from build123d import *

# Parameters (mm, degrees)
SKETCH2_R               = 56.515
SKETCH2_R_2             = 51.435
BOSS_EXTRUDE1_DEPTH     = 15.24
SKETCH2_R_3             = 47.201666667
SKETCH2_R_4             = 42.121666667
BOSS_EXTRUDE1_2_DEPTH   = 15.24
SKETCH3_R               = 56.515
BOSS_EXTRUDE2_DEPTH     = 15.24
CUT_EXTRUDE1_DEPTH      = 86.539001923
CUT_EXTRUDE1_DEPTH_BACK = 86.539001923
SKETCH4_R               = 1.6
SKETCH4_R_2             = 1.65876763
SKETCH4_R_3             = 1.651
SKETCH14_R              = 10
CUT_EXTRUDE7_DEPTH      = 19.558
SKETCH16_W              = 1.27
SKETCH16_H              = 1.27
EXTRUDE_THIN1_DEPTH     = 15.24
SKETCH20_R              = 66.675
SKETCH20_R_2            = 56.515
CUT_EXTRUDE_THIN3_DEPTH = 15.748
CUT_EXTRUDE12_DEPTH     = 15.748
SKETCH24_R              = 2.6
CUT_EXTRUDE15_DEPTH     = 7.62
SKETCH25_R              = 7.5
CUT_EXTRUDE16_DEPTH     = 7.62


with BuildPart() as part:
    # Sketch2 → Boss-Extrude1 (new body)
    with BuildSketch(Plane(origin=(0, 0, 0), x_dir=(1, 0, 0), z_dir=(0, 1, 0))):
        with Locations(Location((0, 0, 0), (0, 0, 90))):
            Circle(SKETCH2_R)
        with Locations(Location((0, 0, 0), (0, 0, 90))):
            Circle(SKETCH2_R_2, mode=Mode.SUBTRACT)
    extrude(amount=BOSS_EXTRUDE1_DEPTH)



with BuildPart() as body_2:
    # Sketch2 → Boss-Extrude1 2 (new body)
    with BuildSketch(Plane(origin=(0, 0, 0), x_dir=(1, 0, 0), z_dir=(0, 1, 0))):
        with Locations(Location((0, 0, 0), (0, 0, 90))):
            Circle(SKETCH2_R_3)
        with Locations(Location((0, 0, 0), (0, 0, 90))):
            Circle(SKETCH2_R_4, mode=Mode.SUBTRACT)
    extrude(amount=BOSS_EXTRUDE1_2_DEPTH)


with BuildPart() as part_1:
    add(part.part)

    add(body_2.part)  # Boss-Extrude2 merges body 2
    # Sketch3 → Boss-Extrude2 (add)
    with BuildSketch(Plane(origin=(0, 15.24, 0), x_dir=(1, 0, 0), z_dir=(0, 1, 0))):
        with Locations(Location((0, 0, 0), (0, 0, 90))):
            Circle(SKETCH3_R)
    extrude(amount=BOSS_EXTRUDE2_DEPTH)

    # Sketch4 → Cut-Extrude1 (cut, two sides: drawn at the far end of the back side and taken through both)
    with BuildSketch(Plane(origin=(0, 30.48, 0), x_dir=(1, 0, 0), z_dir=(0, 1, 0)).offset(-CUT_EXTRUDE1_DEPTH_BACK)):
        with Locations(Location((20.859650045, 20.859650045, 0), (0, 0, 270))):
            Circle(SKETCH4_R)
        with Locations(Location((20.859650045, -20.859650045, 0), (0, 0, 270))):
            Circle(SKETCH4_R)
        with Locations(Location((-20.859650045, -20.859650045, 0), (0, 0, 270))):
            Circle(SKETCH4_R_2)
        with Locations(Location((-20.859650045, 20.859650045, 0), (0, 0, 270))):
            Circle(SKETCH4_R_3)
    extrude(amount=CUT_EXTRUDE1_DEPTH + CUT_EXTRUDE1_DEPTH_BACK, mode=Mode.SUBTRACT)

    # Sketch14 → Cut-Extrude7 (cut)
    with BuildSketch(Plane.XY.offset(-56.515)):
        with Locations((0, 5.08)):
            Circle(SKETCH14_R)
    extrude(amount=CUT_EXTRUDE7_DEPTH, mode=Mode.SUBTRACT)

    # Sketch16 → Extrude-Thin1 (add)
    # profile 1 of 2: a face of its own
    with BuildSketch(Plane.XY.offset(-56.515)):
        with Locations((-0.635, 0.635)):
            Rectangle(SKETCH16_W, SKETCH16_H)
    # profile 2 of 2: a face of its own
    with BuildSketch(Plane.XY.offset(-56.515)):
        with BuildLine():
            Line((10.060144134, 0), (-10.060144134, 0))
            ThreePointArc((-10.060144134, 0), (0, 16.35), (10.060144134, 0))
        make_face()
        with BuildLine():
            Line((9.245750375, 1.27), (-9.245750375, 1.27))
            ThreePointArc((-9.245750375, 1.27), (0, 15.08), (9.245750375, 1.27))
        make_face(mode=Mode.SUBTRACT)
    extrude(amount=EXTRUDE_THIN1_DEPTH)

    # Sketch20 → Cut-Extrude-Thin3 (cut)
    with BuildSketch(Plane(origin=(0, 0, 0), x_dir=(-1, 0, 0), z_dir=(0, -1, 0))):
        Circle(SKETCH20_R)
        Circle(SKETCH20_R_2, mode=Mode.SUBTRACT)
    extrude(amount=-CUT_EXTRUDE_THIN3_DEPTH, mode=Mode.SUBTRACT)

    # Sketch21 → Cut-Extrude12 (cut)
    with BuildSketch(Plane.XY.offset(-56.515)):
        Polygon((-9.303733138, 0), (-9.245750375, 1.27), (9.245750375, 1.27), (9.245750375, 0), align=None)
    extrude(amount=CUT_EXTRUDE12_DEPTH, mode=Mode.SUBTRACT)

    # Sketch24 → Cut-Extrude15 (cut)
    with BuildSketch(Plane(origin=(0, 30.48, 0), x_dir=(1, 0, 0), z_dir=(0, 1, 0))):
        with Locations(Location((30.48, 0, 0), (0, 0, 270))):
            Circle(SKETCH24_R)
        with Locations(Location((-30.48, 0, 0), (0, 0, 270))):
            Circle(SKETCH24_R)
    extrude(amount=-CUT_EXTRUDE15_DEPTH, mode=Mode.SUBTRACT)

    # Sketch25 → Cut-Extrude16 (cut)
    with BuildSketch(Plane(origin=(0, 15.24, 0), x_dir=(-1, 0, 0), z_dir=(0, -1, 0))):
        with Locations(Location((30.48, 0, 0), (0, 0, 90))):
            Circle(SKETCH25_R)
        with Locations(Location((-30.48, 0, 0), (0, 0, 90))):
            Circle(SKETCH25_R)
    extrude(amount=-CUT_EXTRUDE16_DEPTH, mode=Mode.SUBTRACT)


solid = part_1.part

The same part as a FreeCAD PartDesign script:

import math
import FreeCAD as App
import Part
import Sketcher

V = App.Vector
Q = App.Units.Quantity

doc = App.newDocument("Part")
body = doc.addObject("PartDesign::Body", "Body")

# Sketch on XZ plane
sketch1 = body.newObject("Sketcher::SketchObject", "Sketch")
sketch1.AttachmentSupport = (doc.getObject("XZ_Plane"), [""])
sketch1.MapMode = "FlatFace"
sketch1.addGeometry(Part.Circle(V(0, 0, 0), V(0, 0, 1), 57), False)
sketch1.addGeometry(Part.Circle(V(0, 0, 0), V(0, 0, 1), 51), False)
sketch1.addConstraint(Sketcher.Constraint("Coincident", 0, 3, -1, 1))
sketch1.addConstraint(Sketcher.Constraint("Coincident", 1, 3, -1, 1))
sketch1.addConstraint(Sketcher.Constraint("Diameter", 0, Q("4.45 in")))
sketch1.addConstraint(Sketcher.Constraint("Diameter", 1, Q("4.05 in")))
pad1 = body.newObject("PartDesign::Pad", "Pad")
pad1.Profile = sketch1
pad1.Length = Q("0.6 in")
pad1.Reversed = True
body2 = doc.addObject("PartDesign::Body", "Body001")

# Sketch on XZ plane
sketch2 = body2.newObject("Sketcher::SketchObject", "Sketch001")
sketch2.AttachmentSupport = (doc.getObject("XZ_Plane001"), [""])
sketch2.MapMode = "FlatFace"
sketch2.addGeometry(Part.Circle(V(0, 0, 0), V(0, 0, 1), 47), False)
sketch2.addGeometry(Part.Circle(V(0, 0, 0), V(0, 0, 1), 42), False)
sketch2.addConstraint(Sketcher.Constraint("Coincident", 0, 3, -1, 1))
sketch2.addConstraint(Sketcher.Constraint("Coincident", 1, 3, -1, 1))
sketch2.addConstraint(Sketcher.Constraint("Diameter", 0, Q("94.403333 mm")))
sketch2.addConstraint(Sketcher.Constraint("Diameter", 1, Q("84.243333 mm")))
pad2 = body2.newObject("PartDesign::Pad", "Pad001")
pad2.Profile = sketch2
pad2.Length = Q("0.6 in")
pad2.Reversed = True
body.AllowCompound = True
doc.recompute()

boolean = body.newObject("PartDesign::Boolean", "Boolean")
boolean.Type = "Fuse"
boolean.addObjects([body2])

# Sketch on XZ plane
sketch3 = body.newObject("Sketcher::SketchObject", "Sketch002")
sketch3.AttachmentSupport = (doc.getObject("XZ_Plane"), [""])
sketch3.MapMode = "FlatFace"
sketch3.AttachmentOffset = App.Placement(V(0, 0, -0.6 * 25.4), App.Rotation())
sketch3.addGeometry(Part.Circle(V(0, 0, 0), V(0, 0, 1), 57), False)
sketch3.addConstraint(Sketcher.Constraint("Coincident", 0, 3, -1, 1))
sketch3.addConstraint(Sketcher.Constraint("Diameter", 0, Q("4.45 in")))
pad3 = body.newObject("PartDesign::Pad", "Pad002")
pad3.Profile = sketch3
pad3.Length = Q("0.6 in")
pad3.Reversed = True

# Sketch on XZ plane
sketch4 = body.newObject("Sketcher::SketchObject", "Sketch003")
sketch4.AttachmentSupport = (doc.getObject("XZ_Plane"), [""])
sketch4.MapMode = "FlatFace"
sketch4.AttachmentOffset = App.Placement(V(0, 0, -1.2 * 25.4), App.Rotation())
sketch4.addGeometry(Part.Circle(V(20.9, -20.9, 0), V(0, 0, 1), 1.6), False)
sketch4.addGeometry(Part.Circle(V(20.9, 20.9, 0), V(0, 0, 1), 1.6), False)
sketch4.addGeometry(Part.Circle(V(-20.9, 20.9, 0), V(0, 0, 1), 1.7), False)
sketch4.addGeometry(Part.Circle(V(-20.9, -20.9, 0), V(0, 0, 1), 1.7), False)
sketch4.addConstraint(Sketcher.Constraint("Equal", 0, 1))
sketch4.addConstraint(Sketcher.Constraint("Symmetric", 0, 3, 2, 3, -1, 1))
sketch4.addConstraint(Sketcher.Constraint("Symmetric", 1, 3, 3, 3, -1, 1))
sketch4.addConstraint(Sketcher.Constraint("Symmetric", 1, 3, 2, 3, -2))
sketch4.addConstraint(Sketcher.Constraint("Diameter", 3, Q("0.13 in")))
sketch4.addConstraint(Sketcher.Constraint("Diameter", 0, Q("3.2 mm")))
sketch4.addConstraint(Sketcher.Constraint("Diameter", 2, Q("3.317535 mm")))
sketch4.addConstraint(Sketcher.Constraint("DistanceY", 0, 3, 1, 3, Q("41.7193 mm")))
sketch4.addConstraint(Sketcher.Constraint("DistanceX", 2, 3, 1, 3, Q("41.7193 mm")))
pocket1 = body.newObject("PartDesign::Pocket", "Pocket")
pocket1.Profile = sketch4
pocket1.Type = "ThroughAll"
pocket1.Midplane = True

# Sketch on XY plane
sketch5 = body.newObject("Sketcher::SketchObject", "Sketch004")
sketch5.AttachmentSupport = (doc.getObject("XY_Plane"), [""])
sketch5.MapMode = "FlatFace"
sketch5.AttachmentOffset = App.Placement(V(0, 0, -2.225 * 25.4), App.Rotation())
sketch5.addGeometry(Part.Circle(V(0, 5, 0), V(0, 0, 1), 10), False)
sketch5.addConstraint(Sketcher.Constraint("PointOnObject", 0, 3, -2))
sketch5.addConstraint(Sketcher.Constraint("DistanceY", -1, 1, 0, 3, Q("0.2 in")))
sketch5.addConstraint(Sketcher.Constraint("Diameter", 0, Q("20 mm")))
pocket2 = body.newObject("PartDesign::Pocket", "Pocket001")
pocket2.Profile = sketch5
pocket2.Length = Q("0.77 in")
pocket2.Reversed = True

# Sketch on XY plane
sketch6 = body.newObject("Sketcher::SketchObject", "Sketch005")
sketch6.AttachmentSupport = (doc.getObject("XY_Plane"), [""])
sketch6.MapMode = "FlatFace"
sketch6.AttachmentOffset = App.Placement(V(0, 0, -2.225 * 25.4), App.Rotation())
sketch6.addGeometry(Part.ArcOfCircle(Part.Circle(V(0, 5, 0), V(0, 0, 1), 11), math.radians(-27), math.radians(207)), False)
sketch6.addGeometry(Part.LineSegment(V(-10, 0, 0), V(10, 0, 0)), False)
sketch6.addGeometry(Part.ArcOfCircle(Part.Circle(V(0, 5, 0), V(0, 0, 1), 10), math.radians(-22), math.radians(202)), False)
sketch6.addGeometry(Part.LineSegment(V(9, 1, 0), V(-9, 1, 0)), False)
sketch6.addConstraint(Sketcher.Constraint("Coincident", 0, 1, 1, 2))
sketch6.addConstraint(Sketcher.Constraint("Coincident", 1, 1, 0, 2))
sketch6.addConstraint(Sketcher.Constraint("Coincident", 2, 1, 3, 1))
sketch6.addConstraint(Sketcher.Constraint("Coincident", 3, 2, 2, 2))
sketch6.addConstraint(Sketcher.Constraint("Horizontal", 1))
sketch6.addConstraint(Sketcher.Constraint("Horizontal", 3))
sketch6.addConstraint(Sketcher.Constraint("Coincident", 2, 3, 0, 3))
sketch6.addConstraint(Sketcher.Constraint("Symmetric", 0, 1, 1, 1, -1, 1))
sketch6.addConstraint(Sketcher.Constraint("DistanceY", -1, 1, 0, 3, Q("0.2 in")))
sketch6.addConstraint(Sketcher.Constraint("DistanceY", -1, 1, 2, 1, Q("0.05 in")))
sketch6.addConstraint(Sketcher.Constraint("Radius", 0, Q("11.27 mm")))
sketch6.addConstraint(Sketcher.Constraint("Radius", 2, Q("10 mm")))
pad4 = body.newObject("PartDesign::Pad", "Pad003")
pad4.Profile = sketch6
pad4.Length = Q("0.6 in")

# Sketch on XZ plane
sketch7 = body.newObject("Sketcher::SketchObject", "Sketch006")
sketch7.AttachmentSupport = (doc.getObject("XZ_Plane"), [""])
sketch7.MapMode = "FlatFace"
sketch7.addGeometry(Part.Circle(V(0, 0, 0), V(0, 0, 1), 67), False)
sketch7.addGeometry(Part.Circle(V(0, 0, 0), V(0, 0, 1), 57), False)
sketch7.addConstraint(Sketcher.Constraint("Coincident", 0, 3, -1, 1))
sketch7.addConstraint(Sketcher.Constraint("Coincident", 1, 3, -1, 1))
sketch7.addConstraint(Sketcher.Constraint("Diameter", 0, Q("5.25 in")))
sketch7.addConstraint(Sketcher.Constraint("Diameter", 1, Q("4.45 in")))
pocket3 = body.newObject("PartDesign::Pocket", "Pocket002")
pocket3.Profile = sketch7
pocket3.Length = Q("0.62 in")

# Sketch on XY plane
sketch8 = body.newObject("Sketcher::SketchObject", "Sketch007")
sketch8.AttachmentSupport = (doc.getObject("XY_Plane"), [""])
sketch8.MapMode = "FlatFace"
sketch8.AttachmentOffset = App.Placement(V(0, 0, -2.225 * 25.4), App.Rotation())
sketch8.addGeometry(Part.LineSegment(V(-9.2, 1.3, 0), V(-9.3, 0, 0)), False)
sketch8.addGeometry(Part.LineSegment(V(-9.3, 0, 0), V(9.2, 0, 0)), False)
sketch8.addGeometry(Part.LineSegment(V(9.2, 0, 0), V(9.2, 1.3, 0)), False)
sketch8.addGeometry(Part.LineSegment(V(9.2, 1.3, 0), V(-9.2, 1.3, 0)), False)
sketch8.addConstraint(Sketcher.Constraint("Coincident", 0, 2, 1, 1))
sketch8.addConstraint(Sketcher.Constraint("Coincident", 1, 2, 2, 1))
sketch8.addConstraint(Sketcher.Constraint("Coincident", 2, 2, 3, 1))
sketch8.addConstraint(Sketcher.Constraint("Coincident", 3, 2, 0, 1))
sketch8.addConstraint(Sketcher.Constraint("Horizontal", 1))
sketch8.addConstraint(Sketcher.Constraint("Vertical", 2))
sketch8.addConstraint(Sketcher.Constraint("Horizontal", 3))
sketch8.addConstraint(Sketcher.Constraint("PointOnObject", 0, 2, -1))
sketch8.addConstraint(Sketcher.Constraint("DistanceY", 2, 1, 2, 2, Q("0.05 in")))
sketch8.addConstraint(Sketcher.Constraint("DistanceX", 3, 2, 3, 1, Q("18.491501 mm")))
sketch8.addConstraint(Sketcher.Constraint("DistanceX", 1, 1, 1, 2, Q("18.549484 mm")))
sketch8.addConstraint(Sketcher.Constraint("DistanceX", -1, 1, 1, 2, Q("9.24575 mm")))
pocket4 = body.newObject("PartDesign::Pocket", "Pocket003")
pocket4.Profile = sketch8
pocket4.Length = Q("0.62 in")
pocket4.Reversed = True

# Sketch on XZ plane
sketch9 = body.newObject("Sketcher::SketchObject", "Sketch008")
sketch9.AttachmentSupport = (doc.getObject("XZ_Plane"), [""])
sketch9.MapMode = "FlatFace"
sketch9.AttachmentOffset = App.Placement(V(0, 0, -1.2 * 25.4), App.Rotation())
sketch9.addGeometry(Part.Circle(V(30.5, 0, 0), V(0, 0, 1), 2.6), False)
sketch9.addGeometry(Part.Circle(V(-30.5, 0, 0), V(0, 0, 1), 2.6), False)
sketch9.addConstraint(Sketcher.Constraint("Equal", 0, 1))
sketch9.addConstraint(Sketcher.Constraint("Symmetric", 0, 3, 1, 3, -1, 1))
sketch9.addConstraint(Sketcher.Constraint("PointOnObject", 0, 3, -1))
sketch9.addConstraint(Sketcher.Constraint("DistanceX", -1, 1, 0, 3, Q("1.2 in")))
sketch9.addConstraint(Sketcher.Constraint("Diameter", 0, Q("5.2 mm")))
pocket5 = body.newObject("PartDesign::Pocket", "Pocket004")
pocket5.Profile = sketch9
pocket5.Length = Q("0.3 in")
pocket5.Reversed = True

# Sketch on XZ plane
sketch10 = body.newObject("Sketcher::SketchObject", "Sketch009")
sketch10.AttachmentSupport = (doc.getObject("XZ_Plane"), [""])
sketch10.MapMode = "FlatFace"
sketch10.AttachmentOffset = App.Placement(V(0, 0, -0.6 * 25.4), App.Rotation())
sketch10.addGeometry(Part.Circle(V(-30, 0, 0), V(0, 0, 1), 8), False)
sketch10.addGeometry(Part.Circle(V(30, 0, 0), V(0, 0, 1), 8), False)
sketch10.addConstraint(Sketcher.Constraint("Equal", 0, 1))
sketch10.addConstraint(Sketcher.Constraint("Symmetric", 0, 3, 1, 3, -1, 1))
sketch10.addConstraint(Sketcher.Constraint("PointOnObject", 0, 3, -1))
sketch10.addConstraint(Sketcher.Constraint("DistanceX", 0, 3, -1, 1, Q("1.2 in")))
sketch10.addConstraint(Sketcher.Constraint("Diameter", 0, Q("15 mm")))
pocket6 = body.newObject("PartDesign::Pocket", "Pocket005")
pocket6.Profile = sketch10
pocket6.Length = Q("0.3 in")

doc.recompute()
